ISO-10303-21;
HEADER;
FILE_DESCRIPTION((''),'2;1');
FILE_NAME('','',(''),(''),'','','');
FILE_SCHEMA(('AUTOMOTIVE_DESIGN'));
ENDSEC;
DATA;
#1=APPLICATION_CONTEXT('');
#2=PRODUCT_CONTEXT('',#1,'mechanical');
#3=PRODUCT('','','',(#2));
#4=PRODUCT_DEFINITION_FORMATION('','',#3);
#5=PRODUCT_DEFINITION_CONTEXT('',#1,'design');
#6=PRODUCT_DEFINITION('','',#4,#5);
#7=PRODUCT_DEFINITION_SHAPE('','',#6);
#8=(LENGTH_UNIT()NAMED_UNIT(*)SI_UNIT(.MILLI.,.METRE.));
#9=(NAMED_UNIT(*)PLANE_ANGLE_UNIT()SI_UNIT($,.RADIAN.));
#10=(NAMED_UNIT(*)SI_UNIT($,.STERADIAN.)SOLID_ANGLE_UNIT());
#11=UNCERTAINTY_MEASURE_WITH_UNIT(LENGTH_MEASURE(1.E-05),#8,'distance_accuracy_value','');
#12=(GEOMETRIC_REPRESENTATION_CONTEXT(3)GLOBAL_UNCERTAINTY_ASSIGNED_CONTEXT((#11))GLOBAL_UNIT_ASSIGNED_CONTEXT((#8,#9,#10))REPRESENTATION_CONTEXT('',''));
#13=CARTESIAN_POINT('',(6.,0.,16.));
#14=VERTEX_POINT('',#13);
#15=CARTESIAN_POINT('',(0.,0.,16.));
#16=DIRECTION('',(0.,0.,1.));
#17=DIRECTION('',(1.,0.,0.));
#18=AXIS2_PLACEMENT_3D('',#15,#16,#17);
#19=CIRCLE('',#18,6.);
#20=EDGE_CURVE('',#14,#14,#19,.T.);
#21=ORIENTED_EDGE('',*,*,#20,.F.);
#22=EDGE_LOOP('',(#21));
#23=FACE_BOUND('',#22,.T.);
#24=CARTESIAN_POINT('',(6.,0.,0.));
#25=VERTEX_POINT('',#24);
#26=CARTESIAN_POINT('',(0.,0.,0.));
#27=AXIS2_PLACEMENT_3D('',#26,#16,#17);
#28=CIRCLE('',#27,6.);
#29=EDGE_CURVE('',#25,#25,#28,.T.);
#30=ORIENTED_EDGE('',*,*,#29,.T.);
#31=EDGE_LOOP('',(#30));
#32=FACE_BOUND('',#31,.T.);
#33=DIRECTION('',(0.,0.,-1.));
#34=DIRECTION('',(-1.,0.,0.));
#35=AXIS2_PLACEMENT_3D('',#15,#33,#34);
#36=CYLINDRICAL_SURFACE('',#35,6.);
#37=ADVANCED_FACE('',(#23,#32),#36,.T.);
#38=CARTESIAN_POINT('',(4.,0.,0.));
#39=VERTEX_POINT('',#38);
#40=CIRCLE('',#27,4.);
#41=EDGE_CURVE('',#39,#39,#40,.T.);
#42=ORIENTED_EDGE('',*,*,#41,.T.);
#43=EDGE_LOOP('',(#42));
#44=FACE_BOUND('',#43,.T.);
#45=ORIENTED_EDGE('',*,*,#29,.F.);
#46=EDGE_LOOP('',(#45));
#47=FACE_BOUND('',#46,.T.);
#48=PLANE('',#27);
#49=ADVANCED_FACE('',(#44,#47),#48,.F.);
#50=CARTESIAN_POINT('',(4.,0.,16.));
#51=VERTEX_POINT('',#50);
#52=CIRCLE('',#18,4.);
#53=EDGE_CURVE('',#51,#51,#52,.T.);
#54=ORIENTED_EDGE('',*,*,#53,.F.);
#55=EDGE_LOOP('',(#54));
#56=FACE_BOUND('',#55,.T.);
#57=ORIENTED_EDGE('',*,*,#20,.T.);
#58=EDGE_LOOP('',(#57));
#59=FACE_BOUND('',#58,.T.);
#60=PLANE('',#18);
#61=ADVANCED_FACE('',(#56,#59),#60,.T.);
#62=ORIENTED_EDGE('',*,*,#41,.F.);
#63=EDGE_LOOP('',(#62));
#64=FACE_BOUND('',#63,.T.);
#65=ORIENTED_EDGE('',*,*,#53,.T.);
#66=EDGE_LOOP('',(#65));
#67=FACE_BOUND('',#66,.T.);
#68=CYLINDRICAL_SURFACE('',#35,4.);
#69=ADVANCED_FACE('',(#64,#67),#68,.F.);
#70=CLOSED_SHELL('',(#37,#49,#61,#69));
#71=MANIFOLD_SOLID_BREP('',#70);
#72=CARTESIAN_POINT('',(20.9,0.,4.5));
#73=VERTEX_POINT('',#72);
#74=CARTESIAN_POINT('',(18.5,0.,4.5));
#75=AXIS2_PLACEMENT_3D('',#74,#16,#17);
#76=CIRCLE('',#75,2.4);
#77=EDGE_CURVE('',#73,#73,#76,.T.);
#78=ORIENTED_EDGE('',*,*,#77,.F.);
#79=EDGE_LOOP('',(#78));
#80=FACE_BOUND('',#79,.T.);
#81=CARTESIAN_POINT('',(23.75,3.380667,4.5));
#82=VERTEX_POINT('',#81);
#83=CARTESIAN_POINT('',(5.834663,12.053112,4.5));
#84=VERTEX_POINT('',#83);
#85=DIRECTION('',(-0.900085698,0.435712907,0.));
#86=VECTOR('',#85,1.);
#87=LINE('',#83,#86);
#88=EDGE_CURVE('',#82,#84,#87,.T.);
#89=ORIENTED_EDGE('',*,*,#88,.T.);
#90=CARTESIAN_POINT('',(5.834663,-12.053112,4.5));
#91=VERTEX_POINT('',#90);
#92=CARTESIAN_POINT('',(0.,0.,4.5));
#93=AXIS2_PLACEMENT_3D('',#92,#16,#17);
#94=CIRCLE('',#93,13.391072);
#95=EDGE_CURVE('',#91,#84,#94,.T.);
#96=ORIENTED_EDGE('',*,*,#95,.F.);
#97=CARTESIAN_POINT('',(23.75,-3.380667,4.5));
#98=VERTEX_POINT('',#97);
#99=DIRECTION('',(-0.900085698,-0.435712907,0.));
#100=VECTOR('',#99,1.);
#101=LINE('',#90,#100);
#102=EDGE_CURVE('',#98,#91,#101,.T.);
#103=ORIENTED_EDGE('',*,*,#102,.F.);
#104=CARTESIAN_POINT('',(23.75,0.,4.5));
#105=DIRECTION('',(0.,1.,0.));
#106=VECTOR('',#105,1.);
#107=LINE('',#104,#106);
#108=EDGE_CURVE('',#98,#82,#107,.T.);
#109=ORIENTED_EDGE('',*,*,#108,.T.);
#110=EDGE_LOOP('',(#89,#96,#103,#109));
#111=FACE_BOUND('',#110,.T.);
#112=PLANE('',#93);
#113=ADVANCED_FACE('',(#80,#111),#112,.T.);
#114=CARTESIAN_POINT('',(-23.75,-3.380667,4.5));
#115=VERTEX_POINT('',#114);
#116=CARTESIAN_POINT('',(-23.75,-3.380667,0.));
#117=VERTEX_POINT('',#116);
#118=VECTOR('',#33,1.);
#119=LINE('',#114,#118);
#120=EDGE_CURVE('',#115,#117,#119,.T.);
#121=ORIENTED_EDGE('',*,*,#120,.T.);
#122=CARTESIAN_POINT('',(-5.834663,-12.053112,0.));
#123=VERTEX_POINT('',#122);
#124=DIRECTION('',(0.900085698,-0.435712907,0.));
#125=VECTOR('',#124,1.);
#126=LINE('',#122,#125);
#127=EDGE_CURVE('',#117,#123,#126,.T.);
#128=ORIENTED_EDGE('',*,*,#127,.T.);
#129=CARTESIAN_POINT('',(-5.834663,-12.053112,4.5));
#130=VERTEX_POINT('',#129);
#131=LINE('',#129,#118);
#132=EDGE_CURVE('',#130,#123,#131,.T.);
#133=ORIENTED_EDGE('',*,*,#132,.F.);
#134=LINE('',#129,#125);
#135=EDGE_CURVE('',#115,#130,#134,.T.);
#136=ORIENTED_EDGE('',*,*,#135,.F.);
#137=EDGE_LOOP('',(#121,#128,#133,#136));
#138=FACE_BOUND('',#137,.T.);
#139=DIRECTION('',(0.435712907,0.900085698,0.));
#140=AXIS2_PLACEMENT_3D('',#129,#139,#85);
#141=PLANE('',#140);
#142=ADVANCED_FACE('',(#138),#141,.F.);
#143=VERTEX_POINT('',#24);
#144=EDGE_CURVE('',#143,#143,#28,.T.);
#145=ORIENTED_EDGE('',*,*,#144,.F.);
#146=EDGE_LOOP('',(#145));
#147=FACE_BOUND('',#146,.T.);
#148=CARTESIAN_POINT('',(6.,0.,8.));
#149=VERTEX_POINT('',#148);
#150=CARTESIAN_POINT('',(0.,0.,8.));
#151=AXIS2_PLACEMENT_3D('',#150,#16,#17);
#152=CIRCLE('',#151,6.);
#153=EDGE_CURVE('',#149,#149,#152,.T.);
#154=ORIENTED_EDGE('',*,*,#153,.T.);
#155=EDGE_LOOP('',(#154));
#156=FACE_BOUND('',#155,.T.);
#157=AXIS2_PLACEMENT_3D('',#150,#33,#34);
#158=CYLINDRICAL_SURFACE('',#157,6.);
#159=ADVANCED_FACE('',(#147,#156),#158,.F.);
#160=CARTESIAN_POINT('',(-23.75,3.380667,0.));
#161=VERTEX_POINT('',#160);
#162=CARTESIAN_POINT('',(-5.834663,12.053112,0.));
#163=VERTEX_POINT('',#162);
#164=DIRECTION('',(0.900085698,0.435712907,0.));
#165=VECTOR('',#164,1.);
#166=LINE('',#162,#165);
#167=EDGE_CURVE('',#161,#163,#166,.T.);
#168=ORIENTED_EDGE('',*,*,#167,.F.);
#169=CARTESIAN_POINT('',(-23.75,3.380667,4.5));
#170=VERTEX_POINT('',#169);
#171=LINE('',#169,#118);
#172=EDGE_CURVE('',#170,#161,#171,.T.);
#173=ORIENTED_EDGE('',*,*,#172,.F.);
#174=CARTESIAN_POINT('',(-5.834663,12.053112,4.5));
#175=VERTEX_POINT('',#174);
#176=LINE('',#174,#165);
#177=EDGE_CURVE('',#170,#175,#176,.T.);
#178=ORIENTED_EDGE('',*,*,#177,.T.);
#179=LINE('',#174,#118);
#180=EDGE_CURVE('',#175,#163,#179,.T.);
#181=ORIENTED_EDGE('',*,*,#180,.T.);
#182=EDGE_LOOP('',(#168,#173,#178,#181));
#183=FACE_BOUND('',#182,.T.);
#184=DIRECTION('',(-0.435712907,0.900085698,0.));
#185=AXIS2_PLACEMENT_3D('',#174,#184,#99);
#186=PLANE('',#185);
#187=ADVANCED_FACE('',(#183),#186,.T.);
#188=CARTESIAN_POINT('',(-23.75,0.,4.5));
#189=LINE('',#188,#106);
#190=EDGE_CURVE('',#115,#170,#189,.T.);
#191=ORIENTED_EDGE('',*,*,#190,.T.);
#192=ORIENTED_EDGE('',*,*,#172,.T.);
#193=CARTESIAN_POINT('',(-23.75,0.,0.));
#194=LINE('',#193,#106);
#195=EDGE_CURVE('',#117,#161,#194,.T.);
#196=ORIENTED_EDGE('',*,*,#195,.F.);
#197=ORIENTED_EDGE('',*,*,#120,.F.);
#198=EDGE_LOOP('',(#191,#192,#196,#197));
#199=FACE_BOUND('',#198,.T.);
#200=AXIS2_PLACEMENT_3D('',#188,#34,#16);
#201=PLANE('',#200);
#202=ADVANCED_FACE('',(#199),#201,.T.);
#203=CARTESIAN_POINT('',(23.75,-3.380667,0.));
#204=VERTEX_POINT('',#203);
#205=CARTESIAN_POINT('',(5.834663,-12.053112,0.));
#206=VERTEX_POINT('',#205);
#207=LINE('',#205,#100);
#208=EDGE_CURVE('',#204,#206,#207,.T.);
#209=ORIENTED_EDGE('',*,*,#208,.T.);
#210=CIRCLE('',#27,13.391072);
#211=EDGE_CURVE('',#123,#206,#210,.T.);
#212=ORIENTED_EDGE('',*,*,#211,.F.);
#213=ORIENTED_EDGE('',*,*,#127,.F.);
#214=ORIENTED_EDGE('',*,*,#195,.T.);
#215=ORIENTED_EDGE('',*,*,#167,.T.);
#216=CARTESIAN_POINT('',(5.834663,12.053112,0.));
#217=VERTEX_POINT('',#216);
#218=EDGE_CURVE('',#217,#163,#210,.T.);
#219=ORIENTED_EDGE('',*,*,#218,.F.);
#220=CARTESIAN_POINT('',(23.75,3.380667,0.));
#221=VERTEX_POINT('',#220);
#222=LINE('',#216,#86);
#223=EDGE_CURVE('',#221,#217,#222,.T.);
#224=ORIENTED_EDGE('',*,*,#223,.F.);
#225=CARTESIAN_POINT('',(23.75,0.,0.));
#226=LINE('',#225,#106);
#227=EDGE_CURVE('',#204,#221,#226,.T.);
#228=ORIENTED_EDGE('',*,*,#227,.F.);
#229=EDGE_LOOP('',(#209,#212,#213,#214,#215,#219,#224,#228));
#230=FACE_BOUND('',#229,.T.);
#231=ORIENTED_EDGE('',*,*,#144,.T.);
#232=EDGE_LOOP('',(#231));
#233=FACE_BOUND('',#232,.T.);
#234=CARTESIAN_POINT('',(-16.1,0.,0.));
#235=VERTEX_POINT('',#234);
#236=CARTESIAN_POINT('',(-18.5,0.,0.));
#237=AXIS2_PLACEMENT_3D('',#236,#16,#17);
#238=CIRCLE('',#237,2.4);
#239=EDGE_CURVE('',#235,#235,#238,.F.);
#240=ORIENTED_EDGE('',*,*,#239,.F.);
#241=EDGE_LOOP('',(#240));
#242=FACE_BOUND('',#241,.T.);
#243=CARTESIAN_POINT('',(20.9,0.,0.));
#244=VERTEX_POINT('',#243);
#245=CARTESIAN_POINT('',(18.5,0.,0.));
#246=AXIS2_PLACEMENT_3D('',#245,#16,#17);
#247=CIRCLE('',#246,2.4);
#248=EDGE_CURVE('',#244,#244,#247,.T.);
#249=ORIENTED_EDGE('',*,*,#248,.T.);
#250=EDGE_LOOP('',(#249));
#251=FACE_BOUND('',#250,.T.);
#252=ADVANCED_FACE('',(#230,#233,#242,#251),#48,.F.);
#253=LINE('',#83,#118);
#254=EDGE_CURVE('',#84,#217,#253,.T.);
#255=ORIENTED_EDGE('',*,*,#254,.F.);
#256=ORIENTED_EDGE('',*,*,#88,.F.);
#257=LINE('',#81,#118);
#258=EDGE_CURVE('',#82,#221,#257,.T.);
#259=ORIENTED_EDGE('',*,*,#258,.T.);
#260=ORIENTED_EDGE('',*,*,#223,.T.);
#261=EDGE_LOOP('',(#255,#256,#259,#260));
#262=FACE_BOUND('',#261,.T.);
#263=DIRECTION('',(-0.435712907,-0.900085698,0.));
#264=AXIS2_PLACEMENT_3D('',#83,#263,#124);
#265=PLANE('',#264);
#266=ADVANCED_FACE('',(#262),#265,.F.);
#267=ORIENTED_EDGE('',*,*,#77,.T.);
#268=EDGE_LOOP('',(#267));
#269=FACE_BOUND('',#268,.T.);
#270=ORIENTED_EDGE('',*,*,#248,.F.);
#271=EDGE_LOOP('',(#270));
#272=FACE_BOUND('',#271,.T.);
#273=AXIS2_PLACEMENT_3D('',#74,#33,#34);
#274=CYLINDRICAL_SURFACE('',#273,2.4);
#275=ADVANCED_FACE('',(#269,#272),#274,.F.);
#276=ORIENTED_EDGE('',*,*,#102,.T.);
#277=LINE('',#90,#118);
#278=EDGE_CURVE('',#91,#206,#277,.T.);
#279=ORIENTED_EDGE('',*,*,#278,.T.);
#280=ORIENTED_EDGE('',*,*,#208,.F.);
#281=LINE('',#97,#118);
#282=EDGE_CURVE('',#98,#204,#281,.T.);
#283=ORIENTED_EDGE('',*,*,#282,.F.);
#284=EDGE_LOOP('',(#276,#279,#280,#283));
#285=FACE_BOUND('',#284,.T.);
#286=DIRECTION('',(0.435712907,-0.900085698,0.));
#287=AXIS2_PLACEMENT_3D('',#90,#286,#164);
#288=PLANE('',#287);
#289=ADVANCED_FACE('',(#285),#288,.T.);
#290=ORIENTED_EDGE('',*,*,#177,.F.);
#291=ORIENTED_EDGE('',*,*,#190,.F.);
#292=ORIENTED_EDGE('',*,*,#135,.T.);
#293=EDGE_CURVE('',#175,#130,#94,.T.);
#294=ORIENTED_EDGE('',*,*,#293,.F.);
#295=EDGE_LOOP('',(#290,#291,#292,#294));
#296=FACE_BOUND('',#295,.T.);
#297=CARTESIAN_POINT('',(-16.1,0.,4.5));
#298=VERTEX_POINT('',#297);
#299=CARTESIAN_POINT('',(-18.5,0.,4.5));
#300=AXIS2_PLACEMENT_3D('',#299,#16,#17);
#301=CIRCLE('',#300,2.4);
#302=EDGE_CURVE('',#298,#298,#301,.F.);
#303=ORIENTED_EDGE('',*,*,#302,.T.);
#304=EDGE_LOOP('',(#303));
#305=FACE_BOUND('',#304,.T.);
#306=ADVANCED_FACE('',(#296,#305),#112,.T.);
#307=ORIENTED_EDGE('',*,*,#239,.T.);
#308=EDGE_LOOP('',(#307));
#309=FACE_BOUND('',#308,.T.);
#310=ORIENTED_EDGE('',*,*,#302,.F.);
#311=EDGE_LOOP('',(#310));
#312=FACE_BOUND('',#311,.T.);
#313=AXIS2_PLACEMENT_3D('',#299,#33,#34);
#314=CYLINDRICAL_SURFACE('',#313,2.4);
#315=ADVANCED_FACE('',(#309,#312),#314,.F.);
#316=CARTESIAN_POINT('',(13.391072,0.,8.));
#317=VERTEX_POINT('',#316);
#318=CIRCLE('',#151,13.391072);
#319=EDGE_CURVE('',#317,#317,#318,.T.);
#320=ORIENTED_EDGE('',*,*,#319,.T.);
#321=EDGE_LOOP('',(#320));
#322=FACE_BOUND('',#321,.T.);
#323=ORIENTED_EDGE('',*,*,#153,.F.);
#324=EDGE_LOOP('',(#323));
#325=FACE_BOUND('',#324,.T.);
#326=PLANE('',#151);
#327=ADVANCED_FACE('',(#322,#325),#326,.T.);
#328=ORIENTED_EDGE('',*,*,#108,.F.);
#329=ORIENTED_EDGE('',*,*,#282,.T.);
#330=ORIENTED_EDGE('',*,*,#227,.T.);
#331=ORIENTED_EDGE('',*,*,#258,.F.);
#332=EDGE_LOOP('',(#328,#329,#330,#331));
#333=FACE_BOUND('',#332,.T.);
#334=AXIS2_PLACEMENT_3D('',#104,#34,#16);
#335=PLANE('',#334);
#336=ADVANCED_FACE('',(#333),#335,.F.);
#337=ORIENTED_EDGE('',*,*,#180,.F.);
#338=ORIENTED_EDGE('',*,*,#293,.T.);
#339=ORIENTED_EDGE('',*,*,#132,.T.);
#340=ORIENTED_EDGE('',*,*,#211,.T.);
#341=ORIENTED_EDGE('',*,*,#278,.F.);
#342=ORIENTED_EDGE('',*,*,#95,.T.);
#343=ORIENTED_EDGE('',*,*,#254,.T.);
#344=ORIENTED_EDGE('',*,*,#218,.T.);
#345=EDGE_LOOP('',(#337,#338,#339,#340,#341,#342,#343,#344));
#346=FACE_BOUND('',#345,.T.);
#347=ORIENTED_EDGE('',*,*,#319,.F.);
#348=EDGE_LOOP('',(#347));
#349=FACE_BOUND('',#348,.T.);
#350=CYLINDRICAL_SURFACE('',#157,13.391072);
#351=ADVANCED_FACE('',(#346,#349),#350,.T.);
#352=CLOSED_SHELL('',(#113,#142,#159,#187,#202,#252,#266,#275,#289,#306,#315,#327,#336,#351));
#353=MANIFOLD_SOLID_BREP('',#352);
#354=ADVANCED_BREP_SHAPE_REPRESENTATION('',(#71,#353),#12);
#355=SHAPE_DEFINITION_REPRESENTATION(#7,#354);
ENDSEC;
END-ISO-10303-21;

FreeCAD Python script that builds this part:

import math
import FreeCAD as App
import Part
import Sketcher
Q = App.Units.Quantity

doc = App.newDocument("Part")
body = doc.addObject("PartDesign::Body", "Body")

# Sketch on XY plane
sketch1 = body.newObject("Sketcher::SketchObject", "Sketch")
sketch1.AttachmentSupport = (doc.getObject("XY_Plane"), [""])
sketch1.MapMode = "FlatFace"
sketch1.addGeometry([
    Part.LineSegment(App.Vector(5.8, -12.1, 0), App.Vector(23.8, -3.4, 0)),  # 0
    Part.LineSegment(App.Vector(23.8, -3.4, 0), App.Vector(23.8, 3.4, 0)),  # 1
    Part.LineSegment(App.Vector(23.8, 3.4, 0), App.Vector(5.8, 12.1, 0)),  # 2
    Part.ArcOfCircle(Part.Circle(App.Vector(0, 0, 0), App.Vector(0, 0, 1), 13.4), math.radians(-64), math.radians(64)),  # 3
    Part.Circle(App.Vector(18.5, 0, 0), App.Vector(0, 0, 1), 2.4),  # 4
], False)
sketch1.addConstraint([
    Sketcher.Constraint("Coincident", 0, 2, 1, 1),
    Sketcher.Constraint("Coincident", 1, 2, 2, 1),
    Sketcher.Constraint("Tangent", 2, 2, 3, 2),
    Sketcher.Constraint("Tangent", 3, 1, 0, 1),
    Sketcher.Constraint("Vertical", 1),
    Sketcher.Constraint("Coincident", 3, 3, -1, 1),
    Sketcher.Constraint("PointOnObject", 4, 3, -1),
    Sketcher.Constraint("Vertical", 2, 2, 3, 1),
    Sketcher.Constraint("Diameter", 4, Q("4.8 mm")),
    Sketcher.Constraint("DistanceX", -1, 1, 4, 3, Q("18.5 mm")),
    Sketcher.Constraint("DistanceX", -1, 1, 0, 2, Q("23.75 mm")),
    Sketcher.Constraint("Radius", 3, Q("13.391072 mm")),
    Sketcher.Constraint("DistanceY", 1, 1, 1, 2, Q("6.761335 mm")),
])
pad1 = body.newObject("PartDesign::Pad", "Pad")
pad1.Profile = sketch1
pad1.Length = 4.5
body2 = doc.addObject("PartDesign::Body", "Body001")

# Sketch on XY plane
sketch2 = body2.newObject("Sketcher::SketchObject", "Sketch001")
sketch2.AttachmentSupport = (doc.getObject("XY_Plane001"), [""])
sketch2.MapMode = "FlatFace"
sketch2.addGeometry([
    Part.LineSegment(App.Vector(-23.8, -3.4, 0), App.Vector(-5.8, -12.1, 0)),  # 0
    Part.ArcOfCircle(Part.Circle(App.Vector(0, 0, 0), App.Vector(0, 0, 1), 13.4), math.radians(116), math.radians(244)),  # 1
    Part.LineSegment(App.Vector(-5.8, 12.1, 0), App.Vector(-23.8, 3.4, 0)),  # 2
    Part.LineSegment(App.Vector(-23.8, 3.4, 0), App.Vector(-23.8, -3.4, 0)),  # 3
    Part.Circle(App.Vector(-18.5, 0, 0), App.Vector(0, 0, 1), 2.4),  # 4
], False)
sketch2.addConstraint([
    Sketcher.Constraint("Tangent", 0, 2, 1, 2),
    Sketcher.Constraint("Tangent", 1, 1, 2, 1),
    Sketcher.Constraint("Coincident", 2, 2, 3, 1),
    Sketcher.Constraint("Coincident", 3, 2, 0, 1),
    Sketcher.Constraint("Vertical", 3),
    Sketcher.Constraint("Coincident", 1, 3, -1, 1),
    Sketcher.Constraint("PointOnObject", 4, 3, -1),
    Sketcher.Constraint("Vertical", 0, 2, 1, 1),
    Sketcher.Constraint("Diameter", 4, Q("4.8 mm")),
    Sketcher.Constraint("DistanceX", 4, 3, -1, 1, Q("18.5 mm")),
    Sketcher.Constraint("DistanceX", 2, 2, -1, 1, Q("23.75 mm")),
    Sketcher.Constraint("Radius", 1, Q("13.391072 mm")),
    Sketcher.Constraint("DistanceY", 3, 2, 3, 1, Q("6.761335 mm")),
])
pad2 = body2.newObject("PartDesign::Pad", "Pad001")
pad2.Profile = sketch2
pad2.Length = 4.5
body.AllowCompound = True
doc.recompute()

boolean = body.newObject("PartDesign::Boolean", "Boolean")
boolean.Type = "Fuse"
boolean.addObjects([body2])

# Sketch on XY plane
sketch3 = body.newObject("Sketcher::SketchObject", "Sketch002")
sketch3.AttachmentSupport = (doc.getObject("XY_Plane"), [""])
sketch3.MapMode = "FlatFace"
sketch3.addGeometry([
    Part.Circle(App.Vector(0, 0, 0), App.Vector(0, 0, 1), 13),
    Part.Circle(App.Vector(0, 0, 0), App.Vector(0, 0, 1), 6),
], False)
sketch3.addConstraint([
    Sketcher.Constraint("Coincident", 0, 3, -1, 1),
    Sketcher.Constraint("Coincident", 1, 3, -1, 1),
    Sketcher.Constraint("Diameter", 1, Q("12 mm")),
    Sketcher.Constraint("Diameter", 0, Q("26.782144 mm")),
])
pad3 = body.newObject("PartDesign::Pad", "Pad002")
pad3.Profile = sketch3
pad3.Length = 8
body3 = doc.addObject("PartDesign::Body", "Body002")

# Sketch on XY plane
sketch4 = body3.newObject("Sketcher::SketchObject", "Sketch003")
sketch4.AttachmentSupport = (doc.getObject("XY_Plane002"), [""])
sketch4.MapMode = "FlatFace"
sketch4.addGeometry([
    Part.Circle(App.Vector(0, 0, 0), App.Vector(0, 0, 1), 6),
    Part.Circle(App.Vector(0, 0, 0), App.Vector(0, 0, 1), 4),
], False)
sketch4.addConstraint([
    Sketcher.Constraint("Coincident", 0, 3, -1, 1),
    Sketcher.Constraint("Coincident", 1, 3, -1, 1),
    Sketcher.Constraint("Diameter", 0, Q("12 mm")),
    Sketcher.Constraint("Diameter", 1, Q("8 mm")),
])
pad4 = body3.newObject("PartDesign::Pad", "Pad003")
pad4.Profile = sketch4
pad4.Length = 16

doc.recompute()
